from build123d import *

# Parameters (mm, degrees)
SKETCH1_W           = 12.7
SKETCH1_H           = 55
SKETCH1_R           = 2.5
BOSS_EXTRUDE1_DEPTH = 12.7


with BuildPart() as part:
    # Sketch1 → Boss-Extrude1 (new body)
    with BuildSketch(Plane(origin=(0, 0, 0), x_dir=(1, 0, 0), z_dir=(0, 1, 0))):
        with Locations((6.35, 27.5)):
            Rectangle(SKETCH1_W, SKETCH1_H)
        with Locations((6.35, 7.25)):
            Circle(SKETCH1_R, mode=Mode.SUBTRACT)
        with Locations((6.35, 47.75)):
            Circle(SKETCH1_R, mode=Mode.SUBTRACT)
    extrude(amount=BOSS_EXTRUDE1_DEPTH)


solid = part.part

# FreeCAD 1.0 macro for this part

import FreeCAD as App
import Part
import Sketcher

V = App.Vector
Q = App.Units.Quantity

doc = App.newDocument("Part")
body = doc.addObject("PartDesign::Body", "Body")

# Sketch on XZ plane
sketch1 = body.newObject("Sketcher::SketchObject", "Sketch")
sketch1.AttachmentSupport = (doc.getObject("XZ_Plane"), [""])
sketch1.MapMode = "FlatFace"
sketch1.addGeometry([
    Part.LineSegment(V(0, -55, 0), V(0, 0, 0)),  # 0
    Part.LineSegment(V(0, 0, 0), V(12.7, 0, 0)),  # 1
    Part.LineSegment(V(12.7, 0, 0), V(12.7, -55, 0)),  # 2
    Part.LineSegment(V(12.7, -55, 0), V(0, -55, 0)),  # 3
    Part.Circle(V(6.35, -7.25, 0), V(0, 0, 1), 2.5),  # 4
    Part.Circle(V(6.35, -47.75, 0), V(0, 0, 1), 2.5),  # 5
], False)
sketch1.addConstraint([
    Sketcher.Constraint("Coincident", 0, 2, 1, 1),
    Sketcher.Constraint("Coincident", 1, 2, 2, 1),
    Sketcher.Constraint("Coincident", 2, 2, 3, 1),
    Sketcher.Constraint("Coincident", 3, 2, 0, 1),
    Sketcher.Constraint("Vertical", 0),
    Sketcher.Constraint("Horizontal", 1),
    Sketcher.Constraint("Vertical", 2),
    Sketcher.Constraint("Horizontal", 3),
    Sketcher.Constraint("Coincident", 0, 2, -1, 1),
    Sketcher.Constraint("Equal", 4, 5),
    Sketcher.Constraint("Vertical", 4, 3, 5, 3),
    Sketcher.Constraint("Diameter", 4, Q("5 mm")),
    Sketcher.Constraint("DistanceY", 0, 1, 0, 2, Q("55 mm")),
    Sketcher.Constraint("DistanceX", 1, 1, 1, 2, Q("12.7 mm")),
    Sketcher.Constraint("DistanceY", 5, 3, 4, 3, Q("40.5 mm")),
    Sketcher.Constraint("DistanceX", -1, 1, 4, 3, Q("6.35 mm")),
    Sketcher.Constraint("DistanceY", 4, 3, -1, 1, Q("7.25 mm")),
])
pad1 = body.newObject("PartDesign::Pad", "Pad")
pad1.Profile = sketch1
pad1.Length = 12.7
pad1.Reversed = True

doc.recompute()
